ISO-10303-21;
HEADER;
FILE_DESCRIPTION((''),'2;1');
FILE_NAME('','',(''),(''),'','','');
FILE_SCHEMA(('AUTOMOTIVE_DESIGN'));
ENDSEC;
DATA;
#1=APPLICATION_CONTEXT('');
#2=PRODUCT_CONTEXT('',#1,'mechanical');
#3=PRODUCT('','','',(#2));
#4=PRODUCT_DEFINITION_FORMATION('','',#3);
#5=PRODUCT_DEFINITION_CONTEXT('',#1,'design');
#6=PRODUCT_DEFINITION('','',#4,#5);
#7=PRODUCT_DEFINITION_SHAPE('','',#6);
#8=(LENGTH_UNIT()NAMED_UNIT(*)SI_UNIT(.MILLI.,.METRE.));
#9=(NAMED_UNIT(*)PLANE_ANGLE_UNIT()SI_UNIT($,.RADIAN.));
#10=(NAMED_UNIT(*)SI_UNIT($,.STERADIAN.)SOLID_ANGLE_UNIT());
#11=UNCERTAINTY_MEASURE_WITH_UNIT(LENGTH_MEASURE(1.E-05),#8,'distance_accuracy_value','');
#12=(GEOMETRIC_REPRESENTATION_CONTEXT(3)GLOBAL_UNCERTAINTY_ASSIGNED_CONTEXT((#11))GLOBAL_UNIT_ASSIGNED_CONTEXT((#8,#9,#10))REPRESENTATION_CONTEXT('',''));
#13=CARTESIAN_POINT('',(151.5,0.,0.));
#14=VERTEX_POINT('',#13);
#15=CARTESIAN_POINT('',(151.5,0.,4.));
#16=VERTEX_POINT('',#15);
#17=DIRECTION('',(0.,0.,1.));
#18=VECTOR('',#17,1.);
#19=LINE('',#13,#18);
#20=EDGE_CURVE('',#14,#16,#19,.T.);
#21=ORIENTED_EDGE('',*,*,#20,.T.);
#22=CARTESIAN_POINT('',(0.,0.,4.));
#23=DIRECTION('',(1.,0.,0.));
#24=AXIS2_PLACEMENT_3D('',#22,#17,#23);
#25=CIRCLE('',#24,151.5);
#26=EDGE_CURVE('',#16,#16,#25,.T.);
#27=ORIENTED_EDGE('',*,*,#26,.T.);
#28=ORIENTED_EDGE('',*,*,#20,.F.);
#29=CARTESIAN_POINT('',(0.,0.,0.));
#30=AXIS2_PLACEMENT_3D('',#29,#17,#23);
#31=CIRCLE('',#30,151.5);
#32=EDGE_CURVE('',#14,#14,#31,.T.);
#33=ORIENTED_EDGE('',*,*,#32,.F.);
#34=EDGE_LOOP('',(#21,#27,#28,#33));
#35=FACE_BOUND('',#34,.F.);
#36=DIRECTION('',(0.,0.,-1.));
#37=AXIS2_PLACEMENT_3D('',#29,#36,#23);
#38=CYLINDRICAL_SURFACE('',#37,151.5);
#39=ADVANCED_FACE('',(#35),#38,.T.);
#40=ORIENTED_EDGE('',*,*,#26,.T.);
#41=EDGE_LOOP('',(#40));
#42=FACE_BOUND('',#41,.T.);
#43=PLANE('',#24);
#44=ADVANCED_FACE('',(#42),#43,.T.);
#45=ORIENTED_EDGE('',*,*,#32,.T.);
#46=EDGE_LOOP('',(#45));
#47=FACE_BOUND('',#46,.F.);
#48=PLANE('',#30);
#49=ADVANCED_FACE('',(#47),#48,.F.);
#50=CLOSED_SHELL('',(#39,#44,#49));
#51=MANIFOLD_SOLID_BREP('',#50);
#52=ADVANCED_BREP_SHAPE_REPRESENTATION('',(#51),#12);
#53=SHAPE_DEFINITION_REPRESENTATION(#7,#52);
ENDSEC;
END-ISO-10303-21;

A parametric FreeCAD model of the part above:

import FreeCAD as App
import Part
import Sketcher
Q = App.Units.Quantity

doc = App.newDocument("Part")
params = doc.addObject("Spreadsheet::Sheet", "Params")
for row, (alias, value) in enumerate([
    ("sketch1_diameter", "303 mm"),
    ("pad1_length", "4 mm"),
], start=1):
    params.set(f"A{row}", alias)
    params.set(f"B{row}", "=" + value)
    params.setAlias(f"B{row}", alias)

body = doc.addObject("PartDesign::Body", "Body")

# Sketch on XY plane
sketch1 = body.newObject("Sketcher::SketchObject", "Sketch")
sketch1.AttachmentSupport = (doc.getObject("XY_Plane"), [""])
sketch1.MapMode = "FlatFace"
sketch1.addGeometry(Part.Circle(App.Vector(0, 0, 0), App.Vector(0, 0, 1), 152), False)
sketch1.addConstraint(Sketcher.Constraint("Coincident", 0, 3, -1, 1))
sketch1.addConstraint(Sketcher.Constraint("Diameter", 0, Q("303 mm")))
sketch1.setExpression("Constraints[1]", "Params.sketch1_diameter")
pad1 = body.newObject("PartDesign::Pad", "Pad")
pad1.Profile = sketch1
pad1.setExpression("Length", "Params.pad1_length")

doc.recompute()
